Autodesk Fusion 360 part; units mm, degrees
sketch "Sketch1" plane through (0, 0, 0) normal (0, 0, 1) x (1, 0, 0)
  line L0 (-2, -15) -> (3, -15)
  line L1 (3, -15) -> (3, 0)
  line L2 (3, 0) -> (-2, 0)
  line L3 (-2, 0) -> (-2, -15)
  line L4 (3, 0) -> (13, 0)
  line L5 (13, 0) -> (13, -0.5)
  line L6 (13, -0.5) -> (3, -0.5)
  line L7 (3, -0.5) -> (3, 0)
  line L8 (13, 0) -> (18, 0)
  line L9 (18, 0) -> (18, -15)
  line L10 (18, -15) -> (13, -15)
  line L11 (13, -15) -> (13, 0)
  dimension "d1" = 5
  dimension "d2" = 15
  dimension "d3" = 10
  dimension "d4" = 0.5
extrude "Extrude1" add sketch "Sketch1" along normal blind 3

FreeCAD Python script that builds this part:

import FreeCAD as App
import Part
import Sketcher
from FreeCAD import Vector
Q = App.Units.Quantity

doc = App.newDocument("Part")
body = doc.addObject("PartDesign::Body", "Body")

# Sketch on XY plane
sketch1 = doc.addObject("Sketcher::SketchObject", "Sketch")
body.addObject(sketch1)
sketch1.AttachmentSupport = (doc.XY_Plane, [""])
sketch1.MapMode = "FlatFace"
sketch1.addGeometry(Part.LineSegment(Vector(-2, 0, 0), Vector(-2, -15, 0)), False)
sketch1.addGeometry(Part.LineSegment(Vector(-2, -15, 0), Vector(3, -15, 0)), False)
sketch1.addGeometry(Part.LineSegment(Vector(3, -15, 0), Vector(3, 0, 0)), False)
sketch1.addGeometry(Part.LineSegment(Vector(3, 0, 0), Vector(13, 0, 0)), False)
sketch1.addGeometry(Part.LineSegment(Vector(13, 0, 0), Vector(13, -15, 0)), False)
sketch1.addGeometry(Part.LineSegment(Vector(13, -15, 0), Vector(18, -15, 0)), False)
sketch1.addGeometry(Part.LineSegment(Vector(18, -15, 0), Vector(18, 0, 0)), False)
sketch1.addGeometry(Part.LineSegment(Vector(18, 0, 0), Vector(-2, 0, 0)), False)
sketch1.addConstraint(Sketcher.Constraint("Coincident", 0, 2, 1, 1))
sketch1.addConstraint(Sketcher.Constraint("Coincident", 1, 2, 2, 1))
sketch1.addConstraint(Sketcher.Constraint("Coincident", 2, 2, 3, 1))
sketch1.addConstraint(Sketcher.Constraint("Coincident", 3, 2, 4, 1))
sketch1.addConstraint(Sketcher.Constraint("Coincident", 4, 2, 5, 1))
sketch1.addConstraint(Sketcher.Constraint("Coincident", 5, 2, 6, 1))
sketch1.addConstraint(Sketcher.Constraint("Coincident", 6, 2, 7, 1))
sketch1.addConstraint(Sketcher.Constraint("Coincident", 7, 2, 0, 1))
sketch1.addConstraint(Sketcher.Constraint("Vertical", 0))
sketch1.addConstraint(Sketcher.Constraint("Horizontal", 1))
sketch1.addConstraint(Sketcher.Constraint("Vertical", 2))
sketch1.addConstraint(Sketcher.Constraint("Horizontal", 3))
sketch1.addConstraint(Sketcher.Constraint("Vertical", 4))
sketch1.addConstraint(Sketcher.Constraint("Horizontal", 5))
sketch1.addConstraint(Sketcher.Constraint("Vertical", 6))
sketch1.addConstraint(Sketcher.Constraint("Horizontal", 7))
sketch1.addConstraint(Sketcher.Constraint("PointOnObject", 6, 2, -1))
sketch1.addConstraint(Sketcher.Constraint("Horizontal", 1, 2, 4, 2))
sketch1.addConstraint(Sketcher.Constraint("Equal", 1, 5))
sketch1.addConstraint(Sketcher.Constraint("DistanceX", 1, 1, 1, 2, Q("5 mm")))
sketch1.addConstraint(Sketcher.Constraint("DistanceX", 3, 1, 3, 2, Q("10 mm")))
sketch1.addConstraint(Sketcher.Constraint("DistanceY", 0, 2, 0, 1, Q("15 mm")))
sketch1.addConstraint(Sketcher.Constraint("DistanceY", 2, 2, -1, 1, Q("0.5 mm")))
sketch1.addConstraint(Sketcher.Constraint("DistanceX", 0, 2, -1, 1, Q("2 mm")))
pad1 = doc.addObject("PartDesign::Pad", "Pad")
body.addObject(pad1)
pad1.Profile = sketch1
pad1.Length = 3

doc.recompute()
